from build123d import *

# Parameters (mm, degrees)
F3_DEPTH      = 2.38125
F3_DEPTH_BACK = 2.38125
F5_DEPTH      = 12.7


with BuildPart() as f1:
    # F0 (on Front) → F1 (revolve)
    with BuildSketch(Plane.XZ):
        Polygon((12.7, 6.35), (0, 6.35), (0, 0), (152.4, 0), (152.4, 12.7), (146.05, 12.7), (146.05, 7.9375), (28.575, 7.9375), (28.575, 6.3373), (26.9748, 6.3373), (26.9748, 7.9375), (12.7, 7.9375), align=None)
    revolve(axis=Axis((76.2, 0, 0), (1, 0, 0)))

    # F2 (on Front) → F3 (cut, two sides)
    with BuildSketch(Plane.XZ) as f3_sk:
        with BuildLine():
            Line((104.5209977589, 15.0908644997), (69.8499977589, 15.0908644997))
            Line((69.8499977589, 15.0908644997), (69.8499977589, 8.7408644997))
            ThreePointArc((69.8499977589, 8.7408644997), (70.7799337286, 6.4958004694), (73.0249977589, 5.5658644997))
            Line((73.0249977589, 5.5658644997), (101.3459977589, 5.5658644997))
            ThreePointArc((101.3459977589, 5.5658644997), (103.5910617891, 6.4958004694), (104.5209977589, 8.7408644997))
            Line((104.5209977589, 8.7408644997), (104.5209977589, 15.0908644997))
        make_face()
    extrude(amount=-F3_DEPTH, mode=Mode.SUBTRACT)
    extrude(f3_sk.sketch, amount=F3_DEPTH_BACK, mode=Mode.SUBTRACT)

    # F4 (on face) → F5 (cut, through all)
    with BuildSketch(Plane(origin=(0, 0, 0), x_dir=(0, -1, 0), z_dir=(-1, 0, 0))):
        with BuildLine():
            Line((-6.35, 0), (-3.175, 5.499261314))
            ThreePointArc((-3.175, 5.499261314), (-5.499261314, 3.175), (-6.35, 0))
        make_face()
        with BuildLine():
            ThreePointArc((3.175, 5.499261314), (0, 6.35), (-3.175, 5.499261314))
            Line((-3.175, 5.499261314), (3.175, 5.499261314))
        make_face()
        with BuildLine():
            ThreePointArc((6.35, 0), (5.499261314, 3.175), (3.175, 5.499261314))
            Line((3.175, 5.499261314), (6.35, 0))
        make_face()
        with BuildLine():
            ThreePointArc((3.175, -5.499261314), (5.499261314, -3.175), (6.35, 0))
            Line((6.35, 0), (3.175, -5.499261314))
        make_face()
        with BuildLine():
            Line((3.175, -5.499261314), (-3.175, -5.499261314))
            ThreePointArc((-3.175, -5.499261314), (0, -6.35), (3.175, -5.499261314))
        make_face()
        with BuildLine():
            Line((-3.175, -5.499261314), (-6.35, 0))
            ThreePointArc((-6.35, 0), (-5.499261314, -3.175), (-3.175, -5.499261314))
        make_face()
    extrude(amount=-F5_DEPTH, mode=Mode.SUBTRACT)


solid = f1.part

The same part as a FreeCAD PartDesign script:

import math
import FreeCAD as App
import Part
import Sketcher
Q = App.Units.Quantity

doc = App.newDocument("Part")
body = doc.addObject("PartDesign::Body", "Body")

# Sketch on XZ plane
sketch1 = doc.addObject("Sketcher::SketchObject", "Sketch")
body.addObject(sketch1)
sketch1.AttachmentSupport = (doc.XZ_Plane, [""])
sketch1.MapMode = "FlatFace"
sketch1.addGeometry([
    Part.LineSegment(App.Vector(12.7, 6.35, 0), App.Vector(0, 6.35, 0)),  # 0
    Part.LineSegment(App.Vector(0, 6.35, 0), App.Vector(0, 0, 0)),  # 1
    Part.LineSegment(App.Vector(0, 0, 0), App.Vector(152.4, 0, 0)),  # 2
    Part.LineSegment(App.Vector(152.4, 0, 0), App.Vector(152.4, 12.7, 0)),  # 3
    Part.LineSegment(App.Vector(152.4, 12.7, 0), App.Vector(146.05, 12.7, 0)),  # 4
    Part.LineSegment(App.Vector(146.05, 12.7, 0), App.Vector(146.05, 7.9375, 0)),  # 5
    Part.LineSegment(App.Vector(146.05, 7.9375, 0), App.Vector(28.575, 7.9375, 0)),  # 6
    Part.LineSegment(App.Vector(28.575, 7.9375, 0), App.Vector(28.575, 6.3373, 0)),  # 7
    Part.LineSegment(App.Vector(28.575, 6.3373, 0), App.Vector(26.9748, 6.3373, 0)),  # 8
    Part.LineSegment(App.Vector(26.9748, 6.3373, 0), App.Vector(26.9748, 7.9375, 0)),  # 9
    Part.LineSegment(App.Vector(26.9748, 7.9375, 0), App.Vector(12.7, 7.9375, 0)),  # 10
    Part.LineSegment(App.Vector(12.7, 7.9375, 0), App.Vector(12.7, 6.35, 0)),  # 11
], False)
sketch1.addConstraint([
    Sketcher.Constraint("Coincident", 0, 2, 1, 1),
    Sketcher.Constraint("Coincident", 1, 2, 2, 1),
    Sketcher.Constraint("Coincident", 2, 2, 3, 1),
    Sketcher.Constraint("Coincident", 3, 2, 4, 1),
    Sketcher.Constraint("Coincident", 4, 2, 5, 1),
    Sketcher.Constraint("Coincident", 5, 2, 6, 1),
    Sketcher.Constraint("Coincident", 6, 2, 7, 1),
    Sketcher.Constraint("Coincident", 7, 2, 8, 1),
    Sketcher.Constraint("Coincident", 8, 2, 9, 1),
    Sketcher.Constraint("Coincident", 9, 2, 10, 1),
    Sketcher.Constraint("Coincident", 10, 2, 11, 1),
    Sketcher.Constraint("Coincident", 11, 2, 0, 1),
    Sketcher.Constraint("Horizontal", 0),
    Sketcher.Constraint("Vertical", 1),
    Sketcher.Constraint("Horizontal", 2),
    Sketcher.Constraint("Vertical", 3),
    Sketcher.Constraint("Horizontal", 4),
    Sketcher.Constraint("Vertical", 5),
    Sketcher.Constraint("Horizontal", 6),
    Sketcher.Constraint("Vertical", 7),
    Sketcher.Constraint("Horizontal", 8),
    Sketcher.Constraint("Vertical", 9),
    Sketcher.Constraint("Horizontal", 10),
    Sketcher.Constraint("Vertical", 11),
    Sketcher.Constraint("Coincident", 1, 2, -1, 1),
    Sketcher.Constraint("Horizontal", 6, 2, 9, 2),
    Sketcher.Constraint("Equal", 4, 1),
    Sketcher.Constraint("Equal", 0, 3),
    Sketcher.Constraint("Equal", 8, 7),
    Sketcher.Constraint("DistanceX", 2, 1, 2, 2, Q("6 in")),
    Sketcher.Constraint("DistanceX", 0, 2, 0, 1, Q("0.5 in")),
    Sketcher.Constraint("DistanceX", 4, 2, 4, 1, Q("0.25 in")),
    Sketcher.Constraint("DistanceX", 6, 2, 6, 1, Q("4.625 in")),
    Sketcher.Constraint("DistanceX", 8, 2, 8, 1, Q("0.063 in")),
    Sketcher.Constraint("DistanceY", 5, 2, 5, 1, Q("0.1875 in")),
])
revolution = doc.addObject("PartDesign::Revolution", "Revolution")
body.addObject(revolution)
revolution.Profile = sketch1
revolution.ReferenceAxis = (sketch1, ["H_Axis"])
revolution.Angle = 360

# Sketch on XZ plane
sketch2 = doc.addObject("Sketcher::SketchObject", "Sketch001")
body.addObject(sketch2)
sketch2.AttachmentSupport = (doc.XZ_Plane, [""])
sketch2.MapMode = "FlatFace"
sketch2.addGeometry([
    Part.LineSegment(App.Vector(104.520998, 15.090865, 0), App.Vector(69.849998, 15.090865, 0)),  # 0
    Part.LineSegment(App.Vector(69.849998, 15.090865, 0), App.Vector(69.849998, 8.740865, 0)),  # 1
    Part.ArcOfCircle(Part.Circle(App.Vector(73.024998, 8.740865, 0), App.Vector(0, 0, 1), 3.175), math.radians(180), math.radians(270)),  # 2
    Part.LineSegment(App.Vector(73.024998, 5.565864, 0), App.Vector(101.345998, 5.565864, 0)),  # 3
    Part.ArcOfCircle(Part.Circle(App.Vector(101.345998, 8.740865, 0), App.Vector(0, 0, 1), 3.175), math.radians(-90), math.radians(0)),  # 4
    Part.LineSegment(App.Vector(104.520998, 8.740865, 0), App.Vector(104.520998, 15.090865, 0)),  # 5
], False)
sketch2.addConstraint([
    Sketcher.Constraint("Coincident", 0, 2, 1, 1),
    Sketcher.Constraint("Tangent", 1, 2, 2, 1),
    Sketcher.Constraint("Tangent", 2, 2, 3, 1),
    Sketcher.Constraint("Tangent", 3, 2, 4, 1),
    Sketcher.Constraint("Tangent", 4, 2, 5, 1),
    Sketcher.Constraint("Coincident", 5, 2, 0, 1),
    Sketcher.Constraint("Horizontal", 0),
    Sketcher.Constraint("Vertical", 1),
    Sketcher.Constraint("Horizontal", 3),
    Sketcher.Constraint("Vertical", 5),
    Sketcher.Constraint("Equal", 2, 4),
    Sketcher.Constraint("Radius", 2, Q("0.125 in")),
    Sketcher.Constraint("DistanceY", 1, 2, 1, 1, Q("0.25 in")),
    Sketcher.Constraint("DistanceX", 0, 2, 0, 1, Q("1.365 in")),
    Sketcher.Constraint("DistanceX", -1, 1, 4, 3, Q("3.9899999 in")),
    Sketcher.Constraint("DistanceY", -1, 1, 2, 3, 8.740865),
])
pocket1 = doc.addObject("PartDesign::Pocket", "Pocket")
body.addObject(pocket1)
pocket1.Profile = sketch2
pocket1.Type = "TwoLengths"
pocket1.Length = Q("0.09375 in")
pocket1.Length2 = Q("0.09375 in")

# Sketch on YZ plane
sketch3 = doc.addObject("Sketcher::SketchObject", "Sketch002")
body.addObject(sketch3)
sketch3.AttachmentSupport = (doc.YZ_Plane, [""])
sketch3.MapMode = "FlatFace"
sketch3.addGeometry([
    Part.LineSegment(App.Vector(6.35, 0, 0), App.Vector(3.175, 5.499261, 0)),  # 0
    Part.ArcOfCircle(Part.Circle(App.Vector(0, 0, 0), App.Vector(0, 0, 1), 6.35), math.radians(0), math.radians(60)),  # 1
    Part.ArcOfCircle(Part.Circle(App.Vector(0, 0, 0), App.Vector(0, 0, 1), 6.35), math.radians(60), math.radians(120)),  # 2
    Part.LineSegment(App.Vector(3.175, 5.499261, 0), App.Vector(-3.175, 5.499261, 0)),  # 3
    Part.ArcOfCircle(Part.Circle(App.Vector(0, 0, 0), App.Vector(0, 0, 1), 6.35), math.radians(120), math.radians(180)),  # 4
    Part.LineSegment(App.Vector(-3.175, 5.499261, 0), App.Vector(-6.35, 0, 0)),  # 5
    Part.ArcOfCircle(Part.Circle(App.Vector(0, 0, 0), App.Vector(0, 0, 1), 6.35), math.radians(180), math.radians(240)),  # 6
    Part.LineSegment(App.Vector(-6.35, 0, 0), App.Vector(-3.175, -5.499261, 0)),  # 7
    Part.LineSegment(App.Vector(-3.175, -5.499261, 0), App.Vector(3.175, -5.499261, 0)),  # 8
    Part.ArcOfCircle(Part.Circle(App.Vector(0, 0, 0), App.Vector(0, 0, 1), 6.35), math.radians(-120), math.radians(-60)),  # 9
    Part.LineSegment(App.Vector(3.175, -5.499261, 0), App.Vector(6.35, 0, 0)),  # 10
    Part.ArcOfCircle(Part.Circle(App.Vector(0, 0, 0), App.Vector(0, 0, 1), 6.35), math.radians(-60), math.radians(0)),  # 11
], False)
sketch3.addConstraint([
    Sketcher.Constraint("Coincident", 0, 1, 1, 1),
    Sketcher.Constraint("Coincident", 1, 2, 0, 2),
    Sketcher.Constraint("Coincident", 2, 1, 3, 1),
    Sketcher.Constraint("Coincident", 3, 2, 2, 2),
    Sketcher.Constraint("Coincident", 4, 1, 5, 1),
    Sketcher.Constraint("Coincident", 5, 2, 4, 2),
    Sketcher.Constraint("Coincident", 6, 1, 7, 1),
    Sketcher.Constraint("Coincident", 7, 2, 6, 2),
    Sketcher.Constraint("Coincident", 8, 1, 9, 1),
    Sketcher.Constraint("Coincident", 9, 2, 8, 2),
    Sketcher.Constraint("Coincident", 10, 1, 11, 1),
    Sketcher.Constraint("Coincident", 11, 2, 10, 2),
    Sketcher.Constraint("Horizontal", 3),
    Sketcher.Constraint("Horizontal", 8),
    Sketcher.Constraint("Coincident", 1, 3, -1, 1),
    Sketcher.Constraint("Coincident", 2, 3, -1, 1),
    Sketcher.Constraint("Coincident", 4, 3, -1, 1),
    Sketcher.Constraint("Coincident", 6, 3, -1, 1),
    Sketcher.Constraint("Coincident", 9, 3, -1, 1),
    Sketcher.Constraint("Coincident", 11, 3, -1, 1),
    Sketcher.Constraint("Coincident", 2, 1, 1, 2),
    Sketcher.Constraint("Coincident", 4, 1, 3, 2),
    Sketcher.Constraint("Coincident", 6, 1, 5, 2),
    Sketcher.Constraint("Coincident", 8, 1, 7, 2),
    Sketcher.Constraint("Coincident", 10, 1, 9, 2),
    Sketcher.Constraint("PointOnObject", 0, 1, -1),
    Sketcher.Constraint("PointOnObject", 5, 2, -1),
    Sketcher.Constraint("PointOnObject", 11, 2, -1),
    Sketcher.Constraint("Parallel", 0, 7),
    Sketcher.Constraint("Radius", 1, Q("0.25 in")),
    Sketcher.Constraint("Angle", 0, Q("120 deg")),
])
pocket2 = doc.addObject("PartDesign::Pocket", "Pocket001")
body.addObject(pocket2)
pocket2.Profile = sketch3
pocket2.Length = Q("0.5 in")
pocket2.Reversed = True

doc.recompute()
